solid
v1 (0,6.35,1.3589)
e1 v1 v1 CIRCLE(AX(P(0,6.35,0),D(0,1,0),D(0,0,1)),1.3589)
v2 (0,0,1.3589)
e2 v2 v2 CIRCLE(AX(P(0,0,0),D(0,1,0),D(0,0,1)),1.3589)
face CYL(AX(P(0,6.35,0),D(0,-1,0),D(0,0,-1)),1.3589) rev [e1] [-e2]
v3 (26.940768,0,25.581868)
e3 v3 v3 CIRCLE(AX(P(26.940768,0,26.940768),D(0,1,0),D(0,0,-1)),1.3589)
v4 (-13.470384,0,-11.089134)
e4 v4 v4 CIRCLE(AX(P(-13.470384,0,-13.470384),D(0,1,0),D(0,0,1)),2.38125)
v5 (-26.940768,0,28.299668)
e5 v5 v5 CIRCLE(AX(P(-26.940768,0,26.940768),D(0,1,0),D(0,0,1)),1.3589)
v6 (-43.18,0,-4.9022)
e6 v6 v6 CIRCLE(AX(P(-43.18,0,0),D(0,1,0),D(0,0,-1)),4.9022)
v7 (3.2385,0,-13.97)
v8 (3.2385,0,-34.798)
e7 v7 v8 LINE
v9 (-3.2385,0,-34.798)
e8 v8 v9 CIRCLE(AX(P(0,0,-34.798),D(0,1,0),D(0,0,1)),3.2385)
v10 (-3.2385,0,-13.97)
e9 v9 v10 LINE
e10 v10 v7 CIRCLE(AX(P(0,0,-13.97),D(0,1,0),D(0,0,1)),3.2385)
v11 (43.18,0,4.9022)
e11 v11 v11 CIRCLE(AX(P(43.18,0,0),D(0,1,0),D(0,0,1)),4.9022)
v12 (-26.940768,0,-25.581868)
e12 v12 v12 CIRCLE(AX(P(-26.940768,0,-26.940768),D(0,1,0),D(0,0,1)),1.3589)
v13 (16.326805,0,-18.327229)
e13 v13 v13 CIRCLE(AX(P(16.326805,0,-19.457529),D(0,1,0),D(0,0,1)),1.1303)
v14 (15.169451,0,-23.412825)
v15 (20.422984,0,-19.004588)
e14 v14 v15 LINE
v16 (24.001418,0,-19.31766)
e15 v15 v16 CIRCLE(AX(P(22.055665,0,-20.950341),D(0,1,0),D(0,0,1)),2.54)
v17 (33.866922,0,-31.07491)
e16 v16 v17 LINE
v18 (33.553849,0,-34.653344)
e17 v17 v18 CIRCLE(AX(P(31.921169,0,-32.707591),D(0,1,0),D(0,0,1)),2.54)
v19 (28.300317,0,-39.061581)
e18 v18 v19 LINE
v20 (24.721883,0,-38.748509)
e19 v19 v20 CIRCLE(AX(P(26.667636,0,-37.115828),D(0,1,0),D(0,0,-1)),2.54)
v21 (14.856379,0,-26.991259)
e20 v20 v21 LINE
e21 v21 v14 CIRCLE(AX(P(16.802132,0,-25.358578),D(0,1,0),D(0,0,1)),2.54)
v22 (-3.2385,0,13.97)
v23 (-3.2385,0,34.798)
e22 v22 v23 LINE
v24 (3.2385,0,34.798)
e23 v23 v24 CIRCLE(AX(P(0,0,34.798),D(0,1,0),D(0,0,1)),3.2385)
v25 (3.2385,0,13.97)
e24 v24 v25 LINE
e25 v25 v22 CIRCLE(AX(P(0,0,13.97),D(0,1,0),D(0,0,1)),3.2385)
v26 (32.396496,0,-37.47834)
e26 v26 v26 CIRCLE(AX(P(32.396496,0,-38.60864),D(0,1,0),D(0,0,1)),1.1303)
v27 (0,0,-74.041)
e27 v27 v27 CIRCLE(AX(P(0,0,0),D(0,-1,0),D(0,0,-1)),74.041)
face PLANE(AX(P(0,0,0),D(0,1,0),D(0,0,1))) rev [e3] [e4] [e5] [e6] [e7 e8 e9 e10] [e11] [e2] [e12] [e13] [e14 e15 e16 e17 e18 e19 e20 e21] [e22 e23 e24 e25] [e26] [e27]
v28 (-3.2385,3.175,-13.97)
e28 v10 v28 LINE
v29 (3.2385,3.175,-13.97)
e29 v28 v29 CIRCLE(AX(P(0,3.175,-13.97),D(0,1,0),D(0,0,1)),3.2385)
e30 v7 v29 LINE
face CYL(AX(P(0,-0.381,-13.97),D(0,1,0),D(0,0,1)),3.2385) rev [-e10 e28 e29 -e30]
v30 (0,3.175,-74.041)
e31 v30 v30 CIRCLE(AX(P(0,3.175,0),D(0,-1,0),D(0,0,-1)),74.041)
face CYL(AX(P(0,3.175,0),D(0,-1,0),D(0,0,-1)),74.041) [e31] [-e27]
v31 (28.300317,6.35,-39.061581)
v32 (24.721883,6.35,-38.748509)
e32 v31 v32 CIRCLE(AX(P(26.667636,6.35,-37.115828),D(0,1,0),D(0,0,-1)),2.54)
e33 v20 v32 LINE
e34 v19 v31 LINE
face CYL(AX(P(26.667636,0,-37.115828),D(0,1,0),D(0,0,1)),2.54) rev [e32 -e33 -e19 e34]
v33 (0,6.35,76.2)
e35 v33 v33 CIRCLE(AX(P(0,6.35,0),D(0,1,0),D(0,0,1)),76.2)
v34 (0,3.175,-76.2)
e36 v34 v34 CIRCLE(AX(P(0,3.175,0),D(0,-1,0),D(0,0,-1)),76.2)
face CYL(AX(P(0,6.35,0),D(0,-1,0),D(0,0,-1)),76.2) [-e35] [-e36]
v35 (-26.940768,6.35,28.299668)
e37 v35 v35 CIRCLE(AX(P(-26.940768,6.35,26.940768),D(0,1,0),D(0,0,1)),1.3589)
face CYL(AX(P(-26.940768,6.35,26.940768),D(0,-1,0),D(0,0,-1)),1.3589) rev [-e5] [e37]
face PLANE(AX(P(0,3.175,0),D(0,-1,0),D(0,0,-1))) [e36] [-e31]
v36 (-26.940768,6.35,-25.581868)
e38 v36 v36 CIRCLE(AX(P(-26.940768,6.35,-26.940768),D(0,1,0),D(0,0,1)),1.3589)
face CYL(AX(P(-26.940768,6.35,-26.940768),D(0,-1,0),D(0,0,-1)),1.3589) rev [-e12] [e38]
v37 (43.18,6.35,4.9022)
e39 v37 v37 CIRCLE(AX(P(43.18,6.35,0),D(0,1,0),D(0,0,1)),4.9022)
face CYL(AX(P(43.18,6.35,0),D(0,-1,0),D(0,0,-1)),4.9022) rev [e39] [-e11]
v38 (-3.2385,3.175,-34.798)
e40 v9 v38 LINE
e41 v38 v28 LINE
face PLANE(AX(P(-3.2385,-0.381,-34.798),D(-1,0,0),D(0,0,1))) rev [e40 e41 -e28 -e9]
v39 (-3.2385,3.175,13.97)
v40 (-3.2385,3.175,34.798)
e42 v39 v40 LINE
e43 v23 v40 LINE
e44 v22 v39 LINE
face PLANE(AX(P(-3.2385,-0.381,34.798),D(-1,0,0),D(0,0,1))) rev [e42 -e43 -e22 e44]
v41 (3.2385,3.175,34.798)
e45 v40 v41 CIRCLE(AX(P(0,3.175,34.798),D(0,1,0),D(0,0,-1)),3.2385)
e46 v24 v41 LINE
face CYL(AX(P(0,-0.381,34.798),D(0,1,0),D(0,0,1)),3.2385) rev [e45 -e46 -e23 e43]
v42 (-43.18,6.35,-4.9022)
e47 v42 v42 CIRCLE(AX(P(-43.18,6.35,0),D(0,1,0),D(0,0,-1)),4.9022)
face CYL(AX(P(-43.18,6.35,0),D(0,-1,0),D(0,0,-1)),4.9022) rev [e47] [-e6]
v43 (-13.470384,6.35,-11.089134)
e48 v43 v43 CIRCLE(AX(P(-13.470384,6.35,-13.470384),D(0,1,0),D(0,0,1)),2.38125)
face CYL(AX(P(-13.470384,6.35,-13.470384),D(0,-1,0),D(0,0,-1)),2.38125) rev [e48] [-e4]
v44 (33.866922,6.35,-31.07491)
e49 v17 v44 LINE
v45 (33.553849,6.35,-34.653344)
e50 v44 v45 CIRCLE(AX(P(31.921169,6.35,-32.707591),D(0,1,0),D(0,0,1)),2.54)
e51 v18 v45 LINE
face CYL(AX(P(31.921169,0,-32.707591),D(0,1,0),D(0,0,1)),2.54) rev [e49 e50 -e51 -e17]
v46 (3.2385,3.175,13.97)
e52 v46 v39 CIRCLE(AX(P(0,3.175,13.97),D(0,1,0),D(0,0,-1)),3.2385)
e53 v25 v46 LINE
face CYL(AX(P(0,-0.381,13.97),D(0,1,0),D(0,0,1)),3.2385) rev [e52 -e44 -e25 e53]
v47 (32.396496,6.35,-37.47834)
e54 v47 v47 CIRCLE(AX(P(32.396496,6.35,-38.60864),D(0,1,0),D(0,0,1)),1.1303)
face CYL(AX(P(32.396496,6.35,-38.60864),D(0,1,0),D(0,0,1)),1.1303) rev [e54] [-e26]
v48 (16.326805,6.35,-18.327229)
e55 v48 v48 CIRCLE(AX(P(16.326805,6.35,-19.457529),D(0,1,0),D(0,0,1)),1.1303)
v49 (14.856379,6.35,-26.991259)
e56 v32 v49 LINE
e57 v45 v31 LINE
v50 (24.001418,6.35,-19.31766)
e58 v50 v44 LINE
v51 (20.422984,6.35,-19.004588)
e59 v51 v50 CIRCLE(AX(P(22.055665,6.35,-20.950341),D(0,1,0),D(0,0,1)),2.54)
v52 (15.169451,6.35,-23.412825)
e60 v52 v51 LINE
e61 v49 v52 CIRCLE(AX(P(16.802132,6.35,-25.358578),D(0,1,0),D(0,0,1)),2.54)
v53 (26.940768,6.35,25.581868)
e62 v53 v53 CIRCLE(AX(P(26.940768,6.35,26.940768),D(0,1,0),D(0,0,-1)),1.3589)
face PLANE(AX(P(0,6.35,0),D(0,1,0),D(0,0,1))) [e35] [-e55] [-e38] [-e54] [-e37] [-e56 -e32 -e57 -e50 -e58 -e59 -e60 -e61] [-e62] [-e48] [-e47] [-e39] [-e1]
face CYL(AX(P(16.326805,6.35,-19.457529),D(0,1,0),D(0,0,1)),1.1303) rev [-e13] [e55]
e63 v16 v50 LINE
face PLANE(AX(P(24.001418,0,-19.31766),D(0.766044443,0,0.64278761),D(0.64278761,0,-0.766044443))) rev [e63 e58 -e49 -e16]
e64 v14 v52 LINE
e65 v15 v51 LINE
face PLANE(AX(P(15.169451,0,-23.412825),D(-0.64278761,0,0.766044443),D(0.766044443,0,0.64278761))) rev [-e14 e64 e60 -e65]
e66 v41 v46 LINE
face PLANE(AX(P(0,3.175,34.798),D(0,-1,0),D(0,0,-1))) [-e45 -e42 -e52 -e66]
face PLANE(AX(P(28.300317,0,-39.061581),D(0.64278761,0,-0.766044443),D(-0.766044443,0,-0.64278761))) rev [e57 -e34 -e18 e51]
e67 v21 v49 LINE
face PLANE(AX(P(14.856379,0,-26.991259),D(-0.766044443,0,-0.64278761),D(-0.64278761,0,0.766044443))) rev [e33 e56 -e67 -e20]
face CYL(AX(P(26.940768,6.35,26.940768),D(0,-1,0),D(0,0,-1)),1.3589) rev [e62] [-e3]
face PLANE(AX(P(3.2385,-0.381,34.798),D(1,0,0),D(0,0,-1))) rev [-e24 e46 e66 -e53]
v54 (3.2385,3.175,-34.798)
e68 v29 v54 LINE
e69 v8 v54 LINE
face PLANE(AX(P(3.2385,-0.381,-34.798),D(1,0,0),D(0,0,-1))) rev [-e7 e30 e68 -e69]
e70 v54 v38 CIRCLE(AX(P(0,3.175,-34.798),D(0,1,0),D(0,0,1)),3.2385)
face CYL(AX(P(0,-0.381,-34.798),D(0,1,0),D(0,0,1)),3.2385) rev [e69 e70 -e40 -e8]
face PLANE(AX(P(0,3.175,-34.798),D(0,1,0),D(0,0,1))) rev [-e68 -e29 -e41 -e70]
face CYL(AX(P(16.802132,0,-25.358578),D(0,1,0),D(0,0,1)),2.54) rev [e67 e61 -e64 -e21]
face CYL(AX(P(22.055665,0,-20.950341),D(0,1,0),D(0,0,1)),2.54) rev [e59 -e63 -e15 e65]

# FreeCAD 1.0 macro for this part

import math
import FreeCAD as App
import Part
import Sketcher

V = App.Vector
Q = App.Units.Quantity

doc = App.newDocument("Part")
params = doc.addObject("Spreadsheet::Sheet", "Params")
for row, (alias, value) in enumerate([
    ("sketch1_diameter", "6 in"),
    ("sketch1_diameter2", "0.107 in"),
    ("sketch1_diameter3", "0.386 in"),
    ("sketch1_diameter4", "0.1875 in"),
    ("pad1_length", "0.25 in"),
    ("sketch2_diameter", "6 in"),
    ("sketch2_diameter2", "5.83 in"),
    ("pocket1_length", "0.125 in"),
    ("sketch3_height", "0.82 in"),
    ("pocket2_length", "0.14 in"),
    ("sketch4_diameter", "0.089 in"),
    ("hole_diameter", "0.089 in"),
    ("sketch5_radius", "0.1 in"),
    ("sketch5_length", "0.27 in"),
], start=1):
    params.set(f"A{row}", alias)
    params.set(f"B{row}", "=" + value)
    params.setAlias(f"B{row}", alias)

body = doc.addObject("PartDesign::Body", "Body")

sketch1 = body.newObject("Sketcher::SketchObject", "Sketch")
sketch1.AttachmentSupport = (doc.getObject("XZ_Plane"), [""])
sketch1.MapMode = "FlatFace"
sketch1.addGeometry([
    Part.Circle(V(0, 0, 0), V(0, 0, 1), 76.2),
    Part.Circle(V(-26.9, 26.9, 0), V(0, 0, 1), 1.4),
    Part.Circle(V(-43.2, 0, 0), V(0, 0, 1), 4.9),
    Part.Circle(V(26.9, 26.9, 0), V(0, 0, 1), 1.4),
    Part.Circle(V(0, 0, 0), V(0, 0, 1), 1.4),
    Part.Circle(V(43.2, 0, 0), V(0, 0, 1), 4.9),
    Part.Circle(V(-13.5, -13.5, 0), V(0, 0, 1), 2.4),
    Part.Circle(V(-26.9, -26.9, 0), V(0, 0, 1), 1.4),
], False)
sketch1.addConstraint([
    Sketcher.Constraint("Coincident", 0, 3, -1, 1),
    Sketcher.Constraint("Coincident", 4, 3, -1, 1),
    Sketcher.Constraint("Equal", 1, 3),
    Sketcher.Constraint("Equal", 3, 4),
    Sketcher.Constraint("Equal", 2, 5),
    Sketcher.Constraint("Equal", 4, 7),
    Sketcher.Constraint("Symmetric", 2, 3, 5, 3, -1, 1),
    Sketcher.Constraint("Symmetric", 3, 3, 7, 3, -1, 1),
    Sketcher.Constraint("Symmetric", 1, 3, 3, 3, -2),
    Sketcher.Constraint("PointOnObject", 2, 3, -1),
    Sketcher.Constraint("Diameter", 0, Q("6 in")),
    Sketcher.Constraint("Diameter", 1, Q("0.107 in")),
    Sketcher.Constraint("Diameter", 2, Q("0.386 in")),
    Sketcher.Constraint("Diameter", 6, Q("0.1875 in")),
    Sketcher.Constraint("DistanceX", 2, 3, -1, 1, Q("1.7 in")),
    Sketcher.Constraint("DistanceX", 1, 3, -1, 1, 26.940768),
    Sketcher.Constraint("DistanceY", -1, 1, 1, 3, 26.940768),
    Sketcher.Constraint("DistanceX", 6, 3, -1, 1, 13.470384),
    Sketcher.Constraint("DistanceY", 6, 3, -1, 1, 13.470384),
])
sketch1.setExpression("Constraints[10]", "Params.sketch1_diameter")
sketch1.setExpression("Constraints[11]", "Params.sketch1_diameter2")
sketch1.setExpression("Constraints[12]", "Params.sketch1_diameter3")
sketch1.setExpression("Constraints[13]", "Params.sketch1_diameter4")
pad1 = body.newObject("PartDesign::Pad", "Pad")
pad1.Profile = sketch1
pad1.setExpression("Length", "Params.pad1_length")
pad1.Reversed = True

sketch2 = body.newObject("Sketcher::SketchObject", "Sketch001")
sketch2.AttachmentSupport = (doc.getObject("XZ_Plane"), [""])
sketch2.MapMode = "FlatFace"
sketch2.addGeometry([
    Part.Circle(V(0, 0, 0), V(0, 0, 1), 76),
    Part.Circle(V(0, 0, 0), V(0, 0, 1), 74),
], False)
sketch2.addConstraint([
    Sketcher.Constraint("Coincident", 0, 3, -1, 1),
    Sketcher.Constraint("Coincident", 1, 3, -1, 1),
    Sketcher.Constraint("Diameter", 0, Q("6 in")),
    Sketcher.Constraint("Diameter", 1, Q("5.83 in")),
])
sketch2.setExpression("Constraints[2]", "Params.sketch2_diameter")
sketch2.setExpression("Constraints[3]", "Params.sketch2_diameter2")
pocket1 = body.newObject("PartDesign::Pocket", "Pocket")
pocket1.Profile = sketch2
pocket1.setExpression("Length", "Params.pocket1_length")

sketch3 = body.newObject("Sketcher::SketchObject", "Sketch002")
sketch3.AttachmentSupport = (doc.getObject("XZ_Plane"), [""])
sketch3.MapMode = "FlatFace"
sketch3.AttachmentOffset = App.Placement(V(0, 0, -0.125 * 25.4), App.Rotation())
sketch3.addGeometry([
    Part.LineSegment(V(3.2, -14, 0), V(3.2, -34.8, 0)),
    Part.ArcOfCircle(Part.Circle(V(0, -34.8, 0), V(0, 0, 1), 3.2), math.radians(180), math.radians(360)),
    Part.LineSegment(V(-3.2, -34.8, 0), V(-3.2, -14, 0)),
    Part.ArcOfCircle(Part.Circle(V(0, -14, 0), V(0, 0, 1), 3.2), math.radians(0), math.radians(180)),
    Part.LineSegment(V(3.2, 34.8, 0), V(3.2, 14, 0)),
    Part.ArcOfCircle(Part.Circle(V(0, 14, 0), V(0, 0, 1), 3.2), math.radians(180), math.radians(360)),
    Part.LineSegment(V(-3.2, 14, 0), V(-3.2, 34.8, 0)),
    Part.ArcOfCircle(Part.Circle(V(0, 34.8, 0), V(0, 0, 1), 3.2), math.radians(0), math.radians(180)),
], False)
sketch3.addConstraint([
    Sketcher.Constraint("Tangent", 0, 2, 1, 2),
    Sketcher.Constraint("Tangent", 1, 1, 2, 1),
    Sketcher.Constraint("Tangent", 2, 2, 3, 2),
    Sketcher.Constraint("Tangent", 3, 1, 0, 1),
    Sketcher.Constraint("Tangent", 4, 2, 5, 2),
    Sketcher.Constraint("Tangent", 5, 1, 6, 1),
    Sketcher.Constraint("Tangent", 6, 2, 7, 2),
    Sketcher.Constraint("Tangent", 7, 1, 4, 1),
    Sketcher.Constraint("Vertical", 0),
    Sketcher.Constraint("Vertical", 2),
    Sketcher.Constraint("Vertical", 4),
    Sketcher.Constraint("Vertical", 6),
    Sketcher.Constraint("Equal", 3, 5),
    Sketcher.Constraint("Symmetric", 3, 3, 5, 3, -1, 1),
    Sketcher.Constraint("Symmetric", 1, 3, 7, 3, -1),
    Sketcher.Constraint("DistanceY", 0, 2, 0, 1, Q("0.82 in")),
    Sketcher.Constraint("Radius", 1, Q("0.1275 in")),
    Sketcher.Constraint("DistanceY", 3, 3, 5, 3, Q("1.1 in")),
])
sketch3.setExpression("Constraints[15]", "Params.sketch3_height")
pocket2 = body.newObject("PartDesign::Pocket", "Pocket001")
pocket2.Profile = sketch3
pocket2.setExpression("Length", "Params.pocket2_length")
pocket2.Reversed = True

sketch4 = body.newObject("Sketcher::SketchObject", "Sketch003")
sketch4.AttachmentSupport = (doc.getObject("XZ_Plane"), [""])
sketch4.MapMode = "FlatFace"
sketch4.AttachmentOffset = App.Placement(V(0, 0, -0.25 * 25.4), App.Rotation())
sketch4.addGeometry([
    Part.Circle(V(16.3, -19.5, 0), V(0, 0, 1), 1.1),
    Part.Circle(V(32.4, -38.6, 0), V(0, 0, 1), 1.1),
], False)
sketch4.addConstraint([
    Sketcher.Constraint("Equal", 0, 1),
    Sketcher.Constraint("Diameter", 0, Q("0.089 in")),
    Sketcher.Constraint("DistanceY", 0, 3, -1, 1, 19.457529),
    Sketcher.Constraint("DistanceY", 1, 3, -1, 1, 38.60864),
    Sketcher.Constraint("DistanceX", 0, 3, 1, 3, 16.06969),
    Sketcher.Constraint("DistanceX", -1, 1, 0, 3, 16.326805),
])
sketch4.setExpression("Constraints[1]", "Params.sketch4_diameter")
doc.recompute()
hole = body.newObject("PartDesign::Hole", "Hole")
hole.Profile = sketch4
hole.ThreadType = "None"
hole.setExpression("Diameter", "Params.hole_diameter")
hole.DepthType = "ThroughAll"
hole.Reversed = True

sketch5 = body.newObject("Sketcher::SketchObject", "Sketch004")
sketch5.AttachmentSupport = (doc.getObject("XZ_Plane"), [""])
sketch5.MapMode = "FlatFace"
sketch5.AttachmentOffset = App.Placement(V(0, 0, -0.25 * 25.4), App.Rotation())
sketch5.addGeometry([
    Part.LineSegment(V(15.2, -23.4, 0), V(20.4, -19, 0)),
    Part.ArcOfCircle(Part.Circle(V(22.1, -21, 0), V(0, 0, 1), 2.5), math.radians(40), math.radians(130)),
    Part.LineSegment(V(24, -19.3, 0), V(33.9, -31.1, 0)),
    Part.ArcOfCircle(Part.Circle(V(31.9, -32.7, 0), V(0, 0, 1), 2.5), math.radians(-50), math.radians(40)),
    Part.LineSegment(V(33.6, -34.7, 0), V(28.3, -39.1, 0)),
    Part.ArcOfCircle(Part.Circle(V(26.7, -37.1, 0), V(0, 0, 1), 2.5), math.radians(-140), math.radians(-50)),
    Part.LineSegment(V(24.7, -38.7, 0), V(14.9, -27, 0)),
    Part.ArcOfCircle(Part.Circle(V(16.8, -25.4, 0), V(0, 0, 1), 2.5), math.radians(130), math.radians(220)),
], False)
sketch5.addConstraint([
    Sketcher.Constraint("Tangent", 0, 2, 1, 2),
    Sketcher.Constraint("Tangent", 1, 1, 2, 1),
    Sketcher.Constraint("Tangent", 2, 2, 3, 2),
    Sketcher.Constraint("Tangent", 3, 1, 4, 1),
    Sketcher.Constraint("Tangent", 4, 2, 5, 2),
    Sketcher.Constraint("Tangent", 5, 1, 6, 1),
    Sketcher.Constraint("Tangent", 6, 2, 7, 2),
    Sketcher.Constraint("Tangent", 7, 1, 0, 1),
    Sketcher.Constraint("Equal", 1, 3),
    Sketcher.Constraint("Equal", 3, 5),
    Sketcher.Constraint("Equal", 5, 7),
    Sketcher.Constraint("Perpendicular", 0, 2),
    Sketcher.Constraint("Perpendicular", 2, 4),
    Sketcher.Constraint("Perpendicular", 4, 6),
    Sketcher.Constraint("Radius", 1, Q("0.1 in")),
    Sketcher.Constraint("Angle", 0, Q("40 deg")),
    Sketcher.Constraint("Distance", 0, Q("0.27 in")),
    Sketcher.Constraint("Distance", 2, 15.348),
    Sketcher.Constraint("DistanceY", 1, 3, -1, 1, 20.950341),
    Sketcher.Constraint("DistanceX", -1, 1, 3, 3, 31.921169),
])
sketch5.setExpression("Constraints[14]", "Params.sketch5_radius")
sketch5.setExpression("Constraints[16]", "Params.sketch5_length")
pocket3 = body.newObject("PartDesign::Pocket", "Pocket002")
pocket3.Profile = sketch5
pocket3.Type = "ThroughAll"
pocket3.Reversed = True

doc.recompute()
